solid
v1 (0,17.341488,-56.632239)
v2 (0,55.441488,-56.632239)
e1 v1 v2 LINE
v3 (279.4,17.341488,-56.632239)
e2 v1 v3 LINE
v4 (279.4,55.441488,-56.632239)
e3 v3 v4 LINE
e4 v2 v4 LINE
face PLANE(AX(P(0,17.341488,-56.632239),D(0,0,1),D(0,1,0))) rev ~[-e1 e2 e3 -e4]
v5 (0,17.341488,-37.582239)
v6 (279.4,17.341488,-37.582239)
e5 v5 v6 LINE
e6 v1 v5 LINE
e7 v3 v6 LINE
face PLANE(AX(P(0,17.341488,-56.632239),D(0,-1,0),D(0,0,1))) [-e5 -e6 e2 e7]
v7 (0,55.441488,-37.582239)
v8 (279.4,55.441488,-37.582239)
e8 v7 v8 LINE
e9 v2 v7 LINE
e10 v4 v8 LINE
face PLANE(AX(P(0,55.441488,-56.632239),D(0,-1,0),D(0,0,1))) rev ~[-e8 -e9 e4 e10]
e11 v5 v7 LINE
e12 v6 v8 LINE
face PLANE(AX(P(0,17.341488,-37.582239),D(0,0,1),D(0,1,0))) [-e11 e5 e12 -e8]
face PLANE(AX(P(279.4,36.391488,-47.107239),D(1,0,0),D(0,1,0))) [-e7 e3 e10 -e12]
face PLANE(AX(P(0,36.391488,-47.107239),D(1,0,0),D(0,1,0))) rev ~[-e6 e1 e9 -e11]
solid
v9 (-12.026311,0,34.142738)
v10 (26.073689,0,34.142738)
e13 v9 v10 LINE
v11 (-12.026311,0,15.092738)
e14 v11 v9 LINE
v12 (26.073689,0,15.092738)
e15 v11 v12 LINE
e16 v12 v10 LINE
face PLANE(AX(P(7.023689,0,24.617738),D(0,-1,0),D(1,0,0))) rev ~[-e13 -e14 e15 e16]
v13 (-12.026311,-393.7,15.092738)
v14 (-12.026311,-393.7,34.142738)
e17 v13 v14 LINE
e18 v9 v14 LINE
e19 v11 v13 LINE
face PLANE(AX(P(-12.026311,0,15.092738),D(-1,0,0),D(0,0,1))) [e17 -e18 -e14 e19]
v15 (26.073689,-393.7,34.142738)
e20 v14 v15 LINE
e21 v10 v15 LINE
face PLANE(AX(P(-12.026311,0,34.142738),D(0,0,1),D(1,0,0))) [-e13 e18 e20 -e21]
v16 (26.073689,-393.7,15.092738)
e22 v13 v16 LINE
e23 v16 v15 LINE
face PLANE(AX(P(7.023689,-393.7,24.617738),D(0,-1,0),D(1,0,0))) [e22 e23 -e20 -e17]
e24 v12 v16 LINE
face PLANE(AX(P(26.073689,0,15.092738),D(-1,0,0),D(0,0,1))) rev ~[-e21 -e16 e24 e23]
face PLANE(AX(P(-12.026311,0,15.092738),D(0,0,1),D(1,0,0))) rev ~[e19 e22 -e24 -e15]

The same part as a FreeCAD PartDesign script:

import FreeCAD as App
import Part
import Sketcher
Q = App.Units.Quantity

doc = App.newDocument("Part")
body = doc.addObject("PartDesign::Body", "Body")

sketch1 = body.newObject("Sketcher::SketchObject", "Sketch")
sketch1.AttachmentSupport = (doc.getObject("YZ_Plane"), [""])
sketch1.MapMode = "FlatFace"
sketch1.addGeometry([
    Part.LineSegment(App.Vector(17, -38, 0), App.Vector(17, -57, 0)),
    Part.LineSegment(App.Vector(17, -57, 0), App.Vector(55, -57, 0)),
    Part.LineSegment(App.Vector(55, -57, 0), App.Vector(55, -38, 0)),
    Part.LineSegment(App.Vector(55, -38, 0), App.Vector(17, -38, 0)),
], False)
sketch1.addConstraint([
    Sketcher.Constraint("Coincident", 0, 2, 1, 1),
    Sketcher.Constraint("Coincident", 1, 2, 2, 1),
    Sketcher.Constraint("Coincident", 2, 2, 3, 1),
    Sketcher.Constraint("Coincident", 3, 2, 0, 1),
    Sketcher.Constraint("Vertical", 0),
    Sketcher.Constraint("Horizontal", 1),
    Sketcher.Constraint("Vertical", 2),
    Sketcher.Constraint("Horizontal", 3),
    Sketcher.Constraint("DistanceX", 1, 1, 1, 2, Q("1.5 in")),
    Sketcher.Constraint("DistanceY", 0, 2, 0, 1, Q("0.75 in")),
    Sketcher.Constraint("DistanceY", 0, 2, -1, 1, 56.632239),
    Sketcher.Constraint("DistanceX", -1, 1, 0, 2, 17.341488),
])
pad1 = body.newObject("PartDesign::Pad", "Pad")
pad1.Profile = sketch1
pad1.Length = Q("11 in")
body2 = doc.addObject("PartDesign::Body", "Body001")

sketch2 = body2.newObject("Sketcher::SketchObject", "Sketch001")
sketch2.AttachmentSupport = (doc.getObject("XZ_Plane001"), [""])
sketch2.MapMode = "FlatFace"
sketch2.addGeometry([
    Part.LineSegment(App.Vector(-12, 34, 0), App.Vector(-12, 15, 0)),
    Part.LineSegment(App.Vector(-12, 15, 0), App.Vector(26, 15, 0)),
    Part.LineSegment(App.Vector(26, 15, 0), App.Vector(26, 34, 0)),
    Part.LineSegment(App.Vector(26, 34, 0), App.Vector(-12, 34, 0)),
], False)
sketch2.addConstraint([
    Sketcher.Constraint("Coincident", 0, 2, 1, 1),
    Sketcher.Constraint("Coincident", 1, 2, 2, 1),
    Sketcher.Constraint("Coincident", 2, 2, 3, 1),
    Sketcher.Constraint("Coincident", 3, 2, 0, 1),
    Sketcher.Constraint("Vertical", 0),
    Sketcher.Constraint("Horizontal", 1),
    Sketcher.Constraint("Vertical", 2),
    Sketcher.Constraint("Horizontal", 3),
    Sketcher.Constraint("DistanceX", 1, 1, 1, 2, Q("1.5 in")),
    Sketcher.Constraint("DistanceY", 0, 2, 0, 1, Q("0.75 in")),
    Sketcher.Constraint("DistanceX", 0, 2, -1, 1, 12.026311),
    Sketcher.Constraint("DistanceY", -1, 1, 0, 2, 15.092738),
])
pad2 = body2.newObject("PartDesign::Pad", "Pad001")
pad2.Profile = sketch2
pad2.Length = Q("15.5 in")

doc.recompute()
